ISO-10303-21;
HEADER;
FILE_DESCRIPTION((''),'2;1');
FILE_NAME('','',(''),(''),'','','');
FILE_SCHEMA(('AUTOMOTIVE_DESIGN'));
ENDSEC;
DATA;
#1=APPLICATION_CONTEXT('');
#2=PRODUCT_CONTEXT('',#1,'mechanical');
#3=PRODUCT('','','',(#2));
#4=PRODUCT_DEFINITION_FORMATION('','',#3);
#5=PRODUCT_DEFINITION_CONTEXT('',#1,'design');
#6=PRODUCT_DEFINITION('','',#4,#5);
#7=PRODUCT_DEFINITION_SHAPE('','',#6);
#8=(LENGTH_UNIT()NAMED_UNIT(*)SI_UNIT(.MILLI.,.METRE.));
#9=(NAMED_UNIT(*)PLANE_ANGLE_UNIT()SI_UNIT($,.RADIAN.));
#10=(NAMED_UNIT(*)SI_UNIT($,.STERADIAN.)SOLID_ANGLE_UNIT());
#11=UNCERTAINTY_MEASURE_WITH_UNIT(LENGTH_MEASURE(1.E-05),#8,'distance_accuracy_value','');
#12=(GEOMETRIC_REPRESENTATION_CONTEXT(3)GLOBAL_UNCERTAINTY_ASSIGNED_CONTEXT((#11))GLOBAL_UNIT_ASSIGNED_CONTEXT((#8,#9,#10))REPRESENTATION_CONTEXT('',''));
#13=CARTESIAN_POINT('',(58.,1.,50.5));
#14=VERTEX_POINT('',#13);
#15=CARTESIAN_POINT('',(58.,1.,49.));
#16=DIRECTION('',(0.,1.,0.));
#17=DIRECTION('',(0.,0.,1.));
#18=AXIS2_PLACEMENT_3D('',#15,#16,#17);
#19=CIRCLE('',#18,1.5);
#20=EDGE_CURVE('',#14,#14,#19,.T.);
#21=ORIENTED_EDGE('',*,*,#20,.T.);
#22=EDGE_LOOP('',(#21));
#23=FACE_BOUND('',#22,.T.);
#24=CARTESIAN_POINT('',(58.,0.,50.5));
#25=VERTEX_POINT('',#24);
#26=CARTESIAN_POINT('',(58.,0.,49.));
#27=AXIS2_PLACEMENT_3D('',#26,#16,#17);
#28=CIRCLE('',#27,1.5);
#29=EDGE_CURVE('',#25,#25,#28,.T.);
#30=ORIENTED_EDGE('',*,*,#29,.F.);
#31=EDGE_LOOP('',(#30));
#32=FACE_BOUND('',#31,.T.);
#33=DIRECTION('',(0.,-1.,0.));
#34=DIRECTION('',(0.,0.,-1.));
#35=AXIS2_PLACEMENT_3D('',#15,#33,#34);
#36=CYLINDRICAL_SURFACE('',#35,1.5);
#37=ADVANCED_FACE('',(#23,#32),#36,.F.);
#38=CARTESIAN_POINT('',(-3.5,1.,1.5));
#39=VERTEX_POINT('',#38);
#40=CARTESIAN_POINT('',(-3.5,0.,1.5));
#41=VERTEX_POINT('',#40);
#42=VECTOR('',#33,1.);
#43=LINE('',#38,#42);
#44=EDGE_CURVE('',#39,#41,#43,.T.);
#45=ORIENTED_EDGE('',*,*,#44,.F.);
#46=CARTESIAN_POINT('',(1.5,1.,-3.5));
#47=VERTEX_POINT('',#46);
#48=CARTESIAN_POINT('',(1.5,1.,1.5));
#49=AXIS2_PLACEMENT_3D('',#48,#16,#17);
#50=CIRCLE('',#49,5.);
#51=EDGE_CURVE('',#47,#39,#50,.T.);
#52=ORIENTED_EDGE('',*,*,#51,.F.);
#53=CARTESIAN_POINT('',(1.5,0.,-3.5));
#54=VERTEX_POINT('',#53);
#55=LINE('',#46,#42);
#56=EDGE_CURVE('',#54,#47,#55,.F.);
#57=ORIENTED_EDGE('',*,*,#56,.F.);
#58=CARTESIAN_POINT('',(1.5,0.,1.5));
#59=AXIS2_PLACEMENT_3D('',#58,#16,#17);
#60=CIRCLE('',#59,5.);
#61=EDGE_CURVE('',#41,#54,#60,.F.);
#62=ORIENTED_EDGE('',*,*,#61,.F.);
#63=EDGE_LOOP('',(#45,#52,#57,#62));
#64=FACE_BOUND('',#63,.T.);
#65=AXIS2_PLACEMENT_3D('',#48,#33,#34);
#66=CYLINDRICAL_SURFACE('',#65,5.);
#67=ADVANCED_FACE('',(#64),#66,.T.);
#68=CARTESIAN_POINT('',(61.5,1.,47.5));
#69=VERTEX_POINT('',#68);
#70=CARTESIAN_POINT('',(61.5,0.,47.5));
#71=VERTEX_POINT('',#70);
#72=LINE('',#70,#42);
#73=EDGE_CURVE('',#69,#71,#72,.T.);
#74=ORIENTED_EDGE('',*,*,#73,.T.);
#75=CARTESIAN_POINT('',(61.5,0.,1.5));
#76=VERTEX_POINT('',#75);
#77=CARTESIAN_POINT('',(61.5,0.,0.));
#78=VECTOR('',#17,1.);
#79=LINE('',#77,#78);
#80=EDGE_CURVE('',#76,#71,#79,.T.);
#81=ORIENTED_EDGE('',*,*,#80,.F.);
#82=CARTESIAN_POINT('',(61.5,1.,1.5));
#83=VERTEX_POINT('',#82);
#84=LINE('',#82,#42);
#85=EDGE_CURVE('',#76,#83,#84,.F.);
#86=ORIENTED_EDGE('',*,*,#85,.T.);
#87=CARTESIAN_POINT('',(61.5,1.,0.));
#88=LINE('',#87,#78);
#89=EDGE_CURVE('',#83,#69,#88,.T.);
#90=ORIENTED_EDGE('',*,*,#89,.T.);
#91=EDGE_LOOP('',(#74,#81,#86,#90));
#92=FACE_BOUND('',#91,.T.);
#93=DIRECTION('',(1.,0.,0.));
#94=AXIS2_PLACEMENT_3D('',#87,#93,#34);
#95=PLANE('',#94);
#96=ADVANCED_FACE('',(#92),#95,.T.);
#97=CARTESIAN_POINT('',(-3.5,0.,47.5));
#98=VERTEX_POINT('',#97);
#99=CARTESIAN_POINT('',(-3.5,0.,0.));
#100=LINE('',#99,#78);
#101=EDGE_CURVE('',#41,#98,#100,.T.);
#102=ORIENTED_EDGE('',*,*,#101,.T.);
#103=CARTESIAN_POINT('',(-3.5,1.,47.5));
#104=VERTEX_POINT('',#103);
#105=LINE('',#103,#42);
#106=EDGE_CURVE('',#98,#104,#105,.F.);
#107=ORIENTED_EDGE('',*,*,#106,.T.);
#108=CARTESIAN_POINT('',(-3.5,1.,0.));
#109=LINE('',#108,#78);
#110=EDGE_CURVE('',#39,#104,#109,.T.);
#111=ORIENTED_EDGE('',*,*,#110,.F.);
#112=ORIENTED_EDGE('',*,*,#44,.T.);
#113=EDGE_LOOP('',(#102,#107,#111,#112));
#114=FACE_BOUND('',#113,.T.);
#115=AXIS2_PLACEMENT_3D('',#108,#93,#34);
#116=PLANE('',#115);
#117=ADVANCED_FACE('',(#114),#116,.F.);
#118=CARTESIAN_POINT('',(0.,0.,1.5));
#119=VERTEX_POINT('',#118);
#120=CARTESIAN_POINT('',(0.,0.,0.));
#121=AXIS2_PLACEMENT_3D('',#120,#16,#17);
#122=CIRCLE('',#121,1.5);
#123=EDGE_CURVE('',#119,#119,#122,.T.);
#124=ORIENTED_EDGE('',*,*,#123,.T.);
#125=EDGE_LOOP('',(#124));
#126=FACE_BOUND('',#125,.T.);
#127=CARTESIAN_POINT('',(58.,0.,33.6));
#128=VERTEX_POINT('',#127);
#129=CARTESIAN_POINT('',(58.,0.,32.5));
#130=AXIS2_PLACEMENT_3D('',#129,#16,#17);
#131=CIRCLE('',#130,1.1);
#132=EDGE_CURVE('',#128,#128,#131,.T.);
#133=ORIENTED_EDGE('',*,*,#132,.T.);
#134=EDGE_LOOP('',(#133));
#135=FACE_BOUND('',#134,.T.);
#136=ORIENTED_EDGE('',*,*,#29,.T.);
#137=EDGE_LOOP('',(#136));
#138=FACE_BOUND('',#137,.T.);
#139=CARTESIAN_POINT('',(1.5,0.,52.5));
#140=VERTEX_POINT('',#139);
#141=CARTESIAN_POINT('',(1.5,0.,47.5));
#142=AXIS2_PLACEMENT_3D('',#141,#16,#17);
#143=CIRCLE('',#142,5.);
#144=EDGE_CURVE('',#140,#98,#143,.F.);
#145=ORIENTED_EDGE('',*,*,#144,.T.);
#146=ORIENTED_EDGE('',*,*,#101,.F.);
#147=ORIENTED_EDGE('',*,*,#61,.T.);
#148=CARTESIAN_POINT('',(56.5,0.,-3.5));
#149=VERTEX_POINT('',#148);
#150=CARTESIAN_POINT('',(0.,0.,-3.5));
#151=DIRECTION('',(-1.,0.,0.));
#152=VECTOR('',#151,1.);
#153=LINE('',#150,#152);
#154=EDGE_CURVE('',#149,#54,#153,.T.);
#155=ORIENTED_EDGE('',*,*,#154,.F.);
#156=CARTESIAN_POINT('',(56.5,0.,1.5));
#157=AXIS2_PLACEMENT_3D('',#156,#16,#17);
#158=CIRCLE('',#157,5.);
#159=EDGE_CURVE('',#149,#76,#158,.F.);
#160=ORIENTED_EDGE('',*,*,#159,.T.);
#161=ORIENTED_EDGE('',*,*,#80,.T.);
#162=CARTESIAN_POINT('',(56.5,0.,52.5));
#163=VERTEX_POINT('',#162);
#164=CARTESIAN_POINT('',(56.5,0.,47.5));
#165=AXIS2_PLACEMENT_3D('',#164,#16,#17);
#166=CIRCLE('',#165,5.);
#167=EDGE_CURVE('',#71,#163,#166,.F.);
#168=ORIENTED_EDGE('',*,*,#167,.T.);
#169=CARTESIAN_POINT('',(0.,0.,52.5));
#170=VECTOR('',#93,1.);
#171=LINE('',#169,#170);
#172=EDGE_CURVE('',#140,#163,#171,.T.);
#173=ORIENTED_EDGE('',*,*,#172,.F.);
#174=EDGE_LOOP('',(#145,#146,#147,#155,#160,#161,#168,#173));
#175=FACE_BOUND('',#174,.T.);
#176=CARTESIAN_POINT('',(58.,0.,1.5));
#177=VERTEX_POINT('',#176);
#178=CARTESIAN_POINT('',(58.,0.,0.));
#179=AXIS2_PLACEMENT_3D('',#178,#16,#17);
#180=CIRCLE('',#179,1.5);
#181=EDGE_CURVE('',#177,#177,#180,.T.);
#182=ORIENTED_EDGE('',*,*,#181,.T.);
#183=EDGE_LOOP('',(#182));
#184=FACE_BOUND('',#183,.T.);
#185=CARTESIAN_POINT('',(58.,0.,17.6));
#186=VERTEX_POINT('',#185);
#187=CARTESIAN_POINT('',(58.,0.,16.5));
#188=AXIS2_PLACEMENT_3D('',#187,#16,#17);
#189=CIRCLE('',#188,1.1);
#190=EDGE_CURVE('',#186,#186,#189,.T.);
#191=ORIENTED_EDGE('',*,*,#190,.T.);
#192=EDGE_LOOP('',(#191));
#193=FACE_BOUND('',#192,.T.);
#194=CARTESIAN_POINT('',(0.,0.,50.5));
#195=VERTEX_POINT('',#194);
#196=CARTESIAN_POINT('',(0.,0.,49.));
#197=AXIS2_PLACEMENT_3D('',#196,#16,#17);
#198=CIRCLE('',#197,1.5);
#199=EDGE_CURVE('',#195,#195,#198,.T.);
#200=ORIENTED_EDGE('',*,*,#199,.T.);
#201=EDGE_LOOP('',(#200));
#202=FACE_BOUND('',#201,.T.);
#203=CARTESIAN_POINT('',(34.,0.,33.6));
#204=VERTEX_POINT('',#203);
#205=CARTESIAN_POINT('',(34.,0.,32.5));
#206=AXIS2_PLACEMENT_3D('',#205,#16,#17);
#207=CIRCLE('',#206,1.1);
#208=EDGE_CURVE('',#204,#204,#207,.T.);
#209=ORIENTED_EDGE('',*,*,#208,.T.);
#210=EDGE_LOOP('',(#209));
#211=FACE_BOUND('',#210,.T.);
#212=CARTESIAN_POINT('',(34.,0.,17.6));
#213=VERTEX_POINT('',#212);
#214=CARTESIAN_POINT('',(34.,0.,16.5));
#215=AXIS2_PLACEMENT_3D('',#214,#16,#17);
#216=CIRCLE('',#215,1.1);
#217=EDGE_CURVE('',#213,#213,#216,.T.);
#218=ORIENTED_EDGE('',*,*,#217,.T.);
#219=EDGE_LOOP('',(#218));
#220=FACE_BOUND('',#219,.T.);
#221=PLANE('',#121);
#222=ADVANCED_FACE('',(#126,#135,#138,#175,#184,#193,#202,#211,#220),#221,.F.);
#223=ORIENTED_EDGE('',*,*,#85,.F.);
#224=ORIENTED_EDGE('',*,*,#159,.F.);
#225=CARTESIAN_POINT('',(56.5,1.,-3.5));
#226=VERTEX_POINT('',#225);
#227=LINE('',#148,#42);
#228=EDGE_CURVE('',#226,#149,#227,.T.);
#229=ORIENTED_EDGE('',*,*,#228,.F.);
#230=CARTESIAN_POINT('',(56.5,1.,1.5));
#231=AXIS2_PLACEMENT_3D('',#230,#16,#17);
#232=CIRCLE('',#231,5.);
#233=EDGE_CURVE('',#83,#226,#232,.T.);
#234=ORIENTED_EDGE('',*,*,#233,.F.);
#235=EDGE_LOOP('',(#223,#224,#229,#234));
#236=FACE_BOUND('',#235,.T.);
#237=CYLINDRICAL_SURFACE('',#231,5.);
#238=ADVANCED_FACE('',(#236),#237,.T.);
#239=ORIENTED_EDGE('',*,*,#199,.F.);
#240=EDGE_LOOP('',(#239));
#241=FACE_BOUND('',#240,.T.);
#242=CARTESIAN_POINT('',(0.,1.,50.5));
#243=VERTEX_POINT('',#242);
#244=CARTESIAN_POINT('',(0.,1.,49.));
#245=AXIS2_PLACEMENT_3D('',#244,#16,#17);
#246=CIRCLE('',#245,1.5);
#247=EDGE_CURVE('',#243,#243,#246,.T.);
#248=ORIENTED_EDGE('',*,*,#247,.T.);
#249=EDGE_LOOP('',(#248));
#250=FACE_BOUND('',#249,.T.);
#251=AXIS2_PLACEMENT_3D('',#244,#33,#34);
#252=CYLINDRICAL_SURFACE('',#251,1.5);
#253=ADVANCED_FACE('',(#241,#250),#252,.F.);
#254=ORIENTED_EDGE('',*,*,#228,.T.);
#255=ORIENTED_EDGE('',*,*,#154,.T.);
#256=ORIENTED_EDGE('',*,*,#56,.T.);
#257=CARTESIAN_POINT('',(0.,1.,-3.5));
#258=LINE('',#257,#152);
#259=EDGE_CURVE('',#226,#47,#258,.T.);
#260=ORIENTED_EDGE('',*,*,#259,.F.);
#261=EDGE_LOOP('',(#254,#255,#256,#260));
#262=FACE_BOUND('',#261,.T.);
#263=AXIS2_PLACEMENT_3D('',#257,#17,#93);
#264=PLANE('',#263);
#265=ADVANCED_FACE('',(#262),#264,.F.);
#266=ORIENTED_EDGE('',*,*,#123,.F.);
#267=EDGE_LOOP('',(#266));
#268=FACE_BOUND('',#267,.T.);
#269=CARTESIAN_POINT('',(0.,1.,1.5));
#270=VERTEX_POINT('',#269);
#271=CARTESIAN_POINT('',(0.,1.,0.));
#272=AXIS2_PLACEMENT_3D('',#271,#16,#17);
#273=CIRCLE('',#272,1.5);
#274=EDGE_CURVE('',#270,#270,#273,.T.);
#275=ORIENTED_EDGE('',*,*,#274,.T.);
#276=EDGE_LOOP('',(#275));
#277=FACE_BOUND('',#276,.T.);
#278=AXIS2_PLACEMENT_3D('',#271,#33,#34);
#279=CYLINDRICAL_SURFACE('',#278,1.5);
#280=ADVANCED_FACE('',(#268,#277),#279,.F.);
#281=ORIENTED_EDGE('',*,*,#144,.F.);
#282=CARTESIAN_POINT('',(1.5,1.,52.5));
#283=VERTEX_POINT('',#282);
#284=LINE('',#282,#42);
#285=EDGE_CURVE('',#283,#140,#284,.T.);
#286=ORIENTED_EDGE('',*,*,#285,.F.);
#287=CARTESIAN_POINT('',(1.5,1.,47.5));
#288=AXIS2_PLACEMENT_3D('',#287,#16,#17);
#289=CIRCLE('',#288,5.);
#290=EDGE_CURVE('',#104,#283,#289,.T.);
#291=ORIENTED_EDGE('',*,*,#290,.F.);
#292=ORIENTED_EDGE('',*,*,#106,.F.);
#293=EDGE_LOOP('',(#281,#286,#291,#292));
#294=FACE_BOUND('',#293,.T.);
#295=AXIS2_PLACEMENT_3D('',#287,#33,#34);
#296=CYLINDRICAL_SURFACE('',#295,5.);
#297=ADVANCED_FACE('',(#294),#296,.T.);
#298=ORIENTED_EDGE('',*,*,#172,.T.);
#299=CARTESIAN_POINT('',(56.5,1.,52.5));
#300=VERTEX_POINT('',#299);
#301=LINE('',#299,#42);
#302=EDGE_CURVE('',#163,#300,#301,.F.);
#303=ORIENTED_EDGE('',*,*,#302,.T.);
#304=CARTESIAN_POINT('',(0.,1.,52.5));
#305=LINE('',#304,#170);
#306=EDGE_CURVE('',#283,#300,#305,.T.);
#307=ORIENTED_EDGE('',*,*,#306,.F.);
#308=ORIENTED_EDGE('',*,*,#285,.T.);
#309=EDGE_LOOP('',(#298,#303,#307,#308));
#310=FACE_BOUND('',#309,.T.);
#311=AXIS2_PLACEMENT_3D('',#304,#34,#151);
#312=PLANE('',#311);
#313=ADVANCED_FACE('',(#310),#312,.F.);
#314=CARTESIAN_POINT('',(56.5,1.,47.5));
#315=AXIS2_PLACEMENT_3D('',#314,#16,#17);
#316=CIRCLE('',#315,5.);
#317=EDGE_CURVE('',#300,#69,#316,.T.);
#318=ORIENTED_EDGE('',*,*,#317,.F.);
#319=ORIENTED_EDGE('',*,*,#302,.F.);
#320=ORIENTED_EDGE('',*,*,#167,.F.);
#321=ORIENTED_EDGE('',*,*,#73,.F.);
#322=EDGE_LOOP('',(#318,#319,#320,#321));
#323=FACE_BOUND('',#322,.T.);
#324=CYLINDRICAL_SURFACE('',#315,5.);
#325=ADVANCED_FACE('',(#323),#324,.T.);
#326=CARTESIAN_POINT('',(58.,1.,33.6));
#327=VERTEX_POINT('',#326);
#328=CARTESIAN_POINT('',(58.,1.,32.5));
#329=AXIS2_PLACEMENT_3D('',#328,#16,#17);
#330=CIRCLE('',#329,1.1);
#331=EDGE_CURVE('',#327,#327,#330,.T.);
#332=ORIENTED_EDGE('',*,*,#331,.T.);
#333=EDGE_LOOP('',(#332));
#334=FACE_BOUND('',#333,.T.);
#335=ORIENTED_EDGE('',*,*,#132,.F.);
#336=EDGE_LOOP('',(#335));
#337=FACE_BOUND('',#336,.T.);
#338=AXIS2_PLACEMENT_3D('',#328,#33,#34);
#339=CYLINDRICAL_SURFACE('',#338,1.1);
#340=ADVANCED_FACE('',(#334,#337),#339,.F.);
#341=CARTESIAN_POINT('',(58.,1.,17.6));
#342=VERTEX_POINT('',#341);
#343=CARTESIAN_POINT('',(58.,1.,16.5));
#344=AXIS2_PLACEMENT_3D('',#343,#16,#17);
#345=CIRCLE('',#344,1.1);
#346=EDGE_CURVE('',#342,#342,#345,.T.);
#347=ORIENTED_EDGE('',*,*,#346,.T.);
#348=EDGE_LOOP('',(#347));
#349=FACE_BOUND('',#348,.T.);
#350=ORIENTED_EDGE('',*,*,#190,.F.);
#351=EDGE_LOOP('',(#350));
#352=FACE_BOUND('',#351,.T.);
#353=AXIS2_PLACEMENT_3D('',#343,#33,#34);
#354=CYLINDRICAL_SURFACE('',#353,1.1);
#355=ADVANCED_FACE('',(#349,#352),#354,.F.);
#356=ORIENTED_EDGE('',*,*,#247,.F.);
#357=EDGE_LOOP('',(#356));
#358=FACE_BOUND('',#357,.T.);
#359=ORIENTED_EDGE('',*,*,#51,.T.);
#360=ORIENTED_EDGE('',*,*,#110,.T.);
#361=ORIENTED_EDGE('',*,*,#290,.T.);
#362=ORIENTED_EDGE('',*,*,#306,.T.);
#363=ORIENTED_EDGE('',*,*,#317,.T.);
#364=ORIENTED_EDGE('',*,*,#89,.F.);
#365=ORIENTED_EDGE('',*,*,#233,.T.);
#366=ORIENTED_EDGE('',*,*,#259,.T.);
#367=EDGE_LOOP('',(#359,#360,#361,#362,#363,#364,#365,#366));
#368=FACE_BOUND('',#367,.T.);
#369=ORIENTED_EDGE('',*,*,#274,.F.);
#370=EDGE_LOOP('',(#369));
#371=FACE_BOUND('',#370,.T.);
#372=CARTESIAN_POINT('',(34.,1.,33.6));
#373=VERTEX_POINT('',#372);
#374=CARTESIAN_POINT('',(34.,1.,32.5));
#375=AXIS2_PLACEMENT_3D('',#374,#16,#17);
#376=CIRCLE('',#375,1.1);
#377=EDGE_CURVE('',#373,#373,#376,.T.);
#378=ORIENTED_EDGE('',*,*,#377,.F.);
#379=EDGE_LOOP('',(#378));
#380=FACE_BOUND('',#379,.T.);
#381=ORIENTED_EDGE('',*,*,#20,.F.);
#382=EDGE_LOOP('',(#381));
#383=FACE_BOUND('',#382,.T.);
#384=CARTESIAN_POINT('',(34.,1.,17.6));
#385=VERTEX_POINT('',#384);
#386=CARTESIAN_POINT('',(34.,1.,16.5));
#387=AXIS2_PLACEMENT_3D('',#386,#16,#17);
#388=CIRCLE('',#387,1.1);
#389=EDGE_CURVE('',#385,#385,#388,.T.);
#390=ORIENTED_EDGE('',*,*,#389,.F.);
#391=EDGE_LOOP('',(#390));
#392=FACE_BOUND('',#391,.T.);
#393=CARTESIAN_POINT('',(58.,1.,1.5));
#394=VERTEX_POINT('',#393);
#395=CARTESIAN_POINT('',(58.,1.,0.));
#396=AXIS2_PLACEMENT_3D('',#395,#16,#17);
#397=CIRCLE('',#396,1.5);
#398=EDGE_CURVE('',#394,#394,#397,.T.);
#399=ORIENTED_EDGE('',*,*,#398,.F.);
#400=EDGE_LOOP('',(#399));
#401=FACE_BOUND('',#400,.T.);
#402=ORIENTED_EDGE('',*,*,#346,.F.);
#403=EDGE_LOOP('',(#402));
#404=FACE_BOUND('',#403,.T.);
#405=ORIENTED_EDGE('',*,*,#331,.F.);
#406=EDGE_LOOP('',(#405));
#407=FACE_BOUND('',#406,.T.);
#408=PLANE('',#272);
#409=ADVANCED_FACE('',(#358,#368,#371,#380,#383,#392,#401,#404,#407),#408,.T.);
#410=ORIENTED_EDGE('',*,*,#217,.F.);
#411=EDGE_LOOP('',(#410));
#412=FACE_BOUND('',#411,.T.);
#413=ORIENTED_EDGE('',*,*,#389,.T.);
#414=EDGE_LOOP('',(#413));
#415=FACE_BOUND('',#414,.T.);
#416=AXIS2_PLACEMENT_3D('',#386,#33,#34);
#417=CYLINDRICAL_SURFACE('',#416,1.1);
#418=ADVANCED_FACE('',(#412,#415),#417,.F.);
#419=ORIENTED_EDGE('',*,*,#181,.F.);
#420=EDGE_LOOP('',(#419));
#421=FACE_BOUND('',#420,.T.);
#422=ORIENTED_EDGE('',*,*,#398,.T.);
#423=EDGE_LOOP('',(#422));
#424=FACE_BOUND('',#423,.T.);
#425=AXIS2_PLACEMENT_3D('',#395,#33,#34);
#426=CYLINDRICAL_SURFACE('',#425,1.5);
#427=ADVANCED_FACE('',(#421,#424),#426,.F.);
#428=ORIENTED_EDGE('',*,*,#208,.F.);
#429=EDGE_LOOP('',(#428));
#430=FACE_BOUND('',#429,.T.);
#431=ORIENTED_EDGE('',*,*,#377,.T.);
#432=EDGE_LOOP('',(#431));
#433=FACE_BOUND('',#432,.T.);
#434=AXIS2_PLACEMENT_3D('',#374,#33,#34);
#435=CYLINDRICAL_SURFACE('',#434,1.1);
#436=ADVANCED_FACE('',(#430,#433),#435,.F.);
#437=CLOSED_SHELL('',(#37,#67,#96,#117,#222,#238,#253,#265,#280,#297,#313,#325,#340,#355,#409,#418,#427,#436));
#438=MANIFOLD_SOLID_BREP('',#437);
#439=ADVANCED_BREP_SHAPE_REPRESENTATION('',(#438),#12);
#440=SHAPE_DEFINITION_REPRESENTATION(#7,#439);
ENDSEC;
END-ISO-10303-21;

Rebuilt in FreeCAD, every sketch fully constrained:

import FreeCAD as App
import Part
import Sketcher

V = App.Vector


def edges_at(feature, points):
    """Names of the edges that pass closest to the given points."""
    edges = feature.Shape.Edges
    near = lambda p: min(range(len(edges)), key=lambda i: edges[i].distToShape(Part.Vertex(*p))[0])
    return sorted({f"Edge{near(p) + 1}" for p in points})

doc = App.newDocument("Part")
body = doc.addObject("PartDesign::Body", "Body")

sketch1 = body.newObject("Sketcher::SketchObject", "Sketch")
sketch1.AttachmentSupport = (doc.getObject("XZ_Plane"), [""])
sketch1.MapMode = "FlatFace"
sketch1.addGeometry([
    Part.LineSegment(V(-3.5, -3.5, 0), V(-3.5, 52.5, 0)),
    Part.LineSegment(V(-3.5, 52.5, 0), V(61.5, 52.5, 0)),
    Part.LineSegment(V(61.5, 52.5, 0), V(61.5, -3.5, 0)),
    Part.LineSegment(V(61.5, -3.5, 0), V(-3.5, -3.5, 0)),
    Part.Circle(V(0, 49, 0), V(0, 0, 1), 1.5),
    Part.Circle(V(58, 49, 0), V(0, 0, 1), 1.5),
    Part.Circle(V(34, 32.5, 0), V(0, 0, 1), 1.1),
    Part.Circle(V(58, 32.5, 0), V(0, 0, 1), 1.1),
    Part.Circle(V(0, 0, 0), V(0, 0, 1), 1.5),
    Part.Circle(V(34, 16.5, 0), V(0, 0, 1), 1.1),
    Part.Circle(V(58, 16.5, 0), V(0, 0, 1), 1.1),
    Part.Circle(V(58, 0, 0), V(0, 0, 1), 1.5),
], False)
sketch1.addConstraint([
    Sketcher.Constraint("Coincident", 0, 2, 1, 1),
    Sketcher.Constraint("Coincident", 1, 2, 2, 1),
    Sketcher.Constraint("Coincident", 2, 2, 3, 1),
    Sketcher.Constraint("Coincident", 3, 2, 0, 1),
    Sketcher.Constraint("Vertical", 0),
    Sketcher.Constraint("Horizontal", 1),
    Sketcher.Constraint("Vertical", 2),
    Sketcher.Constraint("Horizontal", 3),
    Sketcher.Constraint("Coincident", 8, 3, -1, 1),
    Sketcher.Constraint("Equal", 4, 5),
    Sketcher.Constraint("Equal", 6, 7),
    Sketcher.Constraint("Equal", 5, 8),
    Sketcher.Constraint("Equal", 7, 9),
    Sketcher.Constraint("Equal", 9, 10),
    Sketcher.Constraint("Equal", 8, 11),
    Sketcher.Constraint("PointOnObject", 4, 3, -2),
    Sketcher.Constraint("PointOnObject", 11, 3, -1),
    Sketcher.Constraint("Horizontal", 4, 3, 5, 3),
    Sketcher.Constraint("Horizontal", 6, 3, 7, 3),
    Sketcher.Constraint("Horizontal", 9, 3, 10, 3),
    Sketcher.Constraint("Vertical", 5, 3, 7, 3),
    Sketcher.Constraint("Vertical", 6, 3, 9, 3),
    Sketcher.Constraint("Vertical", 7, 3, 10, 3),
    Sketcher.Constraint("Vertical", 10, 3, 11, 3),
    Sketcher.Constraint("Diameter", 4, 3.0),
    Sketcher.Constraint("Diameter", 6, 2.2),
    Sketcher.Constraint("DistanceX", 1, 1, 1, 2, 65.0),
    Sketcher.Constraint("DistanceY", 0, 1, 0, 2, 56.0),
    Sketcher.Constraint("DistanceY", -1, 1, 4, 3, 49.0),
    Sketcher.Constraint("DistanceX", -1, 1, 5, 3, 58.0),
    Sketcher.Constraint("DistanceX", -1, 1, 6, 3, 34.0),
    Sketcher.Constraint("DistanceY", 9, 3, 6, 3, 16.0),
    Sketcher.Constraint("DistanceY", 6, 3, 0, 2, 20.0),
    Sketcher.Constraint("DistanceY", -1, 1, 6, 3, 32.5),
    Sketcher.Constraint("DistanceX", 0, 2, -1, 1, 3.5),
])
pad1 = body.newObject("PartDesign::Pad", "Pad")
pad1.Profile = sketch1
pad1.Length = 1
pad1.Reversed = True
doc.recompute()

fillet = body.newObject("PartDesign::Fillet", "Fillet")
fillet.Base = (pad1, edges_at(pad1, [
    (61.5, 0.5, 52.5),
    (-3.5, 0.5, 52.5),
    (-3.5, 0.5, -3.5),
    (61.5, 0.5, -3.5),
]))
fillet.Radius = 5

doc.recompute()
